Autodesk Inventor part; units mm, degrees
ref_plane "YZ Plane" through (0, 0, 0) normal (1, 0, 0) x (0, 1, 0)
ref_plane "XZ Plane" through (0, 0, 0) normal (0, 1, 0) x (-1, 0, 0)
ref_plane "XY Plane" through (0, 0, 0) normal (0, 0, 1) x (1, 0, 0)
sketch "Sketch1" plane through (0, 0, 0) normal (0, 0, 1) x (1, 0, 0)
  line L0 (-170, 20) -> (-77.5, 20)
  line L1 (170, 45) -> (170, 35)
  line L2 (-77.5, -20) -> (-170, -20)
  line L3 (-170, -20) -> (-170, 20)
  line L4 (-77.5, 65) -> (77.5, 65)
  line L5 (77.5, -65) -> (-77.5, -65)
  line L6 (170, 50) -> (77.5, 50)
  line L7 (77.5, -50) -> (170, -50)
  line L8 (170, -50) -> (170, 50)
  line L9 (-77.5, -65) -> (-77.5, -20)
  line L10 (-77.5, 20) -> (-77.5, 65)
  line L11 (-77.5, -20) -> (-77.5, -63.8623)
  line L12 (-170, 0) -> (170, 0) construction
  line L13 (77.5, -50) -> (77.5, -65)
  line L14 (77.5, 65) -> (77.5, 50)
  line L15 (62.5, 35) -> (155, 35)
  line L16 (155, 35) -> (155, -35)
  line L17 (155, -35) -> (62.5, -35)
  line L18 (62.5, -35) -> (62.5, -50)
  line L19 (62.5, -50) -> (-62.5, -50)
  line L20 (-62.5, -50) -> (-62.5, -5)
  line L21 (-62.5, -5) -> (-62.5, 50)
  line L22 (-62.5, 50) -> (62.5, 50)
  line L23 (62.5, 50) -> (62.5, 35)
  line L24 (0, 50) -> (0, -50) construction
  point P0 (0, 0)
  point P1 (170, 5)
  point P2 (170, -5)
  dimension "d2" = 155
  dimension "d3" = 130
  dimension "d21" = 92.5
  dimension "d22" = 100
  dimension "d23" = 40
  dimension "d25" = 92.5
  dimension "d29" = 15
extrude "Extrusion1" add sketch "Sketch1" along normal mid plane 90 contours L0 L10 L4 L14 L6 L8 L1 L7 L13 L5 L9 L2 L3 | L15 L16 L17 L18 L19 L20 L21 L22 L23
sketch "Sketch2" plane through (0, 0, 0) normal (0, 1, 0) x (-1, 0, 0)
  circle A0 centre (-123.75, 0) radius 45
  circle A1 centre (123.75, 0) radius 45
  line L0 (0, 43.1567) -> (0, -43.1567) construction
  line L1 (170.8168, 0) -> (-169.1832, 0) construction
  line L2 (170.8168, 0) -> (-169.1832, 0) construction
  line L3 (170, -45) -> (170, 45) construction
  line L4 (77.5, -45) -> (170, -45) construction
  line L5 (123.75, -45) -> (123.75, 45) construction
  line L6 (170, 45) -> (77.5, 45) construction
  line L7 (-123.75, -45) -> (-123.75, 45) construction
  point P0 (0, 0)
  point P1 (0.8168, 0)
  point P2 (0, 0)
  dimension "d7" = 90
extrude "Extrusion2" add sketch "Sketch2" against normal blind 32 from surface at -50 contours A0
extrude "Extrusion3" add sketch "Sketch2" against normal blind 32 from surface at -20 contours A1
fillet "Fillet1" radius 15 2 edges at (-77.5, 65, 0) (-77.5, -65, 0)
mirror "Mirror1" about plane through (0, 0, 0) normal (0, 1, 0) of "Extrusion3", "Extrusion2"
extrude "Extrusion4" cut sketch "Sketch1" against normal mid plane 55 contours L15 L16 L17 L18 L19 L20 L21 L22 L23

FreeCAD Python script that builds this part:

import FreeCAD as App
import Part
import Sketcher
Q = App.Units.Quantity


def edges_at(feature, points):
    """Names of the edges that pass closest to the given points."""
    edges = feature.Shape.Edges
    near = lambda p: min(range(len(edges)), key=lambda i: edges[i].distToShape(Part.Vertex(*p))[0])
    return sorted({f"Edge{near(p) + 1}" for p in points})

doc = App.newDocument("Part")
body = doc.addObject("PartDesign::Body", "Body")

sketch1 = body.newObject("Sketcher::SketchObject", "Sketch")
sketch1.AttachmentSupport = (doc.getObject("XY_Plane"), [""])
sketch1.MapMode = "FlatFace"
sketch1.addGeometry([
    Part.LineSegment(App.Vector(-77.5, 20, 0), App.Vector(-170, 20, 0)),
    Part.LineSegment(App.Vector(-170, 20, 0), App.Vector(-170, -20, 0)),
    Part.LineSegment(App.Vector(-170, -20, 0), App.Vector(-77.5, -20, 0)),
    Part.LineSegment(App.Vector(-77.5, -20, 0), App.Vector(-77.5, -65, 0)),
    Part.LineSegment(App.Vector(-77.5, -65, 0), App.Vector(77.5, -65, 0)),
    Part.LineSegment(App.Vector(77.5, -65, 0), App.Vector(77.5, -50, 0)),
    Part.LineSegment(App.Vector(77.5, -50, 0), App.Vector(170, -50, 0)),
    Part.LineSegment(App.Vector(170, -50, 0), App.Vector(170, 50, 0)),
    Part.LineSegment(App.Vector(170, 50, 0), App.Vector(77.5, 50, 0)),
    Part.LineSegment(App.Vector(77.5, 50, 0), App.Vector(77.5, 65, 0)),
    Part.LineSegment(App.Vector(77.5, 65, 0), App.Vector(-77.5, 65, 0)),
    Part.LineSegment(App.Vector(-77.5, 65, 0), App.Vector(-77.5, 20, 0)),
], False)
sketch1.addConstraint([
    Sketcher.Constraint("Coincident", 0, 2, 1, 1),
    Sketcher.Constraint("Coincident", 1, 2, 2, 1),
    Sketcher.Constraint("Coincident", 2, 2, 3, 1),
    Sketcher.Constraint("Coincident", 3, 2, 4, 1),
    Sketcher.Constraint("Coincident", 4, 2, 5, 1),
    Sketcher.Constraint("Coincident", 5, 2, 6, 1),
    Sketcher.Constraint("Coincident", 6, 2, 7, 1),
    Sketcher.Constraint("Coincident", 7, 2, 8, 1),
    Sketcher.Constraint("Coincident", 8, 2, 9, 1),
    Sketcher.Constraint("Coincident", 9, 2, 10, 1),
    Sketcher.Constraint("Coincident", 10, 2, 11, 1),
    Sketcher.Constraint("Coincident", 11, 2, 0, 1),
    Sketcher.Constraint("Horizontal", 0),
    Sketcher.Constraint("Vertical", 1),
    Sketcher.Constraint("Horizontal", 2),
    Sketcher.Constraint("Vertical", 3),
    Sketcher.Constraint("Horizontal", 4),
    Sketcher.Constraint("Vertical", 5),
    Sketcher.Constraint("Horizontal", 6),
    Sketcher.Constraint("Vertical", 7),
    Sketcher.Constraint("Horizontal", 8),
    Sketcher.Constraint("Vertical", 9),
    Sketcher.Constraint("Horizontal", 10),
    Sketcher.Constraint("Vertical", 11),
    Sketcher.Constraint("Symmetric", 3, 2, 9, 2, -1, 1),
    Sketcher.Constraint("Symmetric", 5, 2, 8, 2, -1),
    Sketcher.Constraint("Symmetric", 2, 2, 11, 2, -1),
    Sketcher.Constraint("Equal", 2, 6),
    Sketcher.Constraint("DistanceX", 4, 1, 4, 2, Q("155 mm")),
    Sketcher.Constraint("DistanceY", 1, 2, 1, 1, Q("40 mm")),
    Sketcher.Constraint("DistanceY", 5, 1, 5, 2, Q("15 mm")),
    Sketcher.Constraint("DistanceY", 7, 1, 7, 2, Q("100 mm")),
    Sketcher.Constraint("DistanceX", 0, 2, 0, 1, Q("92.5 mm")),
])
pad1 = body.newObject("PartDesign::Pad", "Pad")
pad1.Profile = sketch1
pad1.Length = 90
pad1.Midplane = True

sketch2 = body.newObject("Sketcher::SketchObject", "Sketch001")
sketch2.AttachmentSupport = (doc.getObject("XZ_Plane"), [""])
sketch2.MapMode = "FlatFace"
sketch2.AttachmentOffset = App.Placement(App.Vector(0, 0, 50), App.Rotation())
sketch2.addGeometry(Part.Circle(App.Vector(123.75, 0, 0), App.Vector(0, 0, 1), 45), False)
sketch2.addConstraint([
    Sketcher.Constraint("PointOnObject", 0, 3, -1),
    Sketcher.Constraint("Diameter", 0, Q("90 mm")),
    Sketcher.Constraint("DistanceX", -1, 1, 0, 3, Q("123.75 mm")),
])
pad2 = body.newObject("PartDesign::Pad", "Pad001")
pad2.Profile = sketch2
pad2.Length = 32

sketch3 = body.newObject("Sketcher::SketchObject", "Sketch002")
sketch3.AttachmentSupport = (doc.getObject("XZ_Plane"), [""])
sketch3.MapMode = "FlatFace"
sketch3.AttachmentOffset = App.Placement(App.Vector(0, 0, 20), App.Rotation())
sketch3.addGeometry(Part.Circle(App.Vector(-123.75, 0, 0), App.Vector(0, 0, 1), 45), False)
sketch3.addConstraint([
    Sketcher.Constraint("PointOnObject", 0, 3, -1),
    Sketcher.Constraint("Diameter", 0, Q("90 mm")),
    Sketcher.Constraint("DistanceX", 0, 3, -1, 1, Q("123.75 mm")),
])
pad3 = body.newObject("PartDesign::Pad", "Pad002")
pad3.Profile = sketch3
pad3.Length = 32
doc.recompute()

fillet = body.newObject("PartDesign::Fillet", "Fillet")
fillet.Base = (pad3, edges_at(pad3, [(-77.5, 65, 0), (-77.5, -65, 0)]))
fillet.Radius = 15
doc.recompute()

mirrored = body.newObject("PartDesign::Mirrored", "Mirrored")
mirrored.Originals = [pad3, pad2]
mirrored.MirrorPlane = (doc.getObject("XZ_Plane"), [""])
body.Tip = mirrored

sketch4 = body.newObject("Sketcher::SketchObject", "Sketch003")
sketch4.AttachmentSupport = (doc.getObject("XY_Plane"), [""])
sketch4.MapMode = "FlatFace"
sketch4.addGeometry([
    Part.LineSegment(App.Vector(155, 35, 0), App.Vector(62.5, 35, 0)),
    Part.LineSegment(App.Vector(62.5, 35, 0), App.Vector(62.5, 50, 0)),
    Part.LineSegment(App.Vector(62.5, 50, 0), App.Vector(-62.5, 50, 0)),
    Part.LineSegment(App.Vector(-62.5, 50, 0), App.Vector(-62.5, -50, 0)),
    Part.LineSegment(App.Vector(-62.5, -50, 0), App.Vector(62.5, -50, 0)),
    Part.LineSegment(App.Vector(62.5, -50, 0), App.Vector(62.5, -35, 0)),
    Part.LineSegment(App.Vector(62.5, -35, 0), App.Vector(155, -35, 0)),
    Part.LineSegment(App.Vector(155, -35, 0), App.Vector(155, 35, 0)),
], False)
sketch4.addConstraint([
    Sketcher.Constraint("Coincident", 0, 2, 1, 1),
    Sketcher.Constraint("Coincident", 1, 2, 2, 1),
    Sketcher.Constraint("Coincident", 2, 2, 3, 1),
    Sketcher.Constraint("Coincident", 3, 2, 4, 1),
    Sketcher.Constraint("Coincident", 4, 2, 5, 1),
    Sketcher.Constraint("Coincident", 5, 2, 6, 1),
    Sketcher.Constraint("Coincident", 6, 2, 7, 1),
    Sketcher.Constraint("Coincident", 7, 2, 0, 1),
    Sketcher.Constraint("Horizontal", 0),
    Sketcher.Constraint("Vertical", 1),
    Sketcher.Constraint("Horizontal", 2),
    Sketcher.Constraint("Vertical", 3),
    Sketcher.Constraint("Horizontal", 4),
    Sketcher.Constraint("Vertical", 5),
    Sketcher.Constraint("Horizontal", 6),
    Sketcher.Constraint("Vertical", 7),
    Sketcher.Constraint("Symmetric", 1, 2, 3, 2, -1, 1),
    Sketcher.Constraint("Symmetric", 0, 2, 5, 2, -1),
    Sketcher.Constraint("DistanceY", 1, 1, 1, 2, Q("15 mm")),
    Sketcher.Constraint("DistanceY", 3, 2, 3, 1, Q("100 mm")),
    Sketcher.Constraint("DistanceX", 0, 2, 0, 1, Q("92.5 mm")),
    Sketcher.Constraint("DistanceX", -1, 1, 6, 2, Q("155 mm")),
])
pocket1 = body.newObject("PartDesign::Pocket", "Pocket")
pocket1.Profile = sketch4
pocket1.Length = 55
pocket1.Midplane = True

doc.recompute()
